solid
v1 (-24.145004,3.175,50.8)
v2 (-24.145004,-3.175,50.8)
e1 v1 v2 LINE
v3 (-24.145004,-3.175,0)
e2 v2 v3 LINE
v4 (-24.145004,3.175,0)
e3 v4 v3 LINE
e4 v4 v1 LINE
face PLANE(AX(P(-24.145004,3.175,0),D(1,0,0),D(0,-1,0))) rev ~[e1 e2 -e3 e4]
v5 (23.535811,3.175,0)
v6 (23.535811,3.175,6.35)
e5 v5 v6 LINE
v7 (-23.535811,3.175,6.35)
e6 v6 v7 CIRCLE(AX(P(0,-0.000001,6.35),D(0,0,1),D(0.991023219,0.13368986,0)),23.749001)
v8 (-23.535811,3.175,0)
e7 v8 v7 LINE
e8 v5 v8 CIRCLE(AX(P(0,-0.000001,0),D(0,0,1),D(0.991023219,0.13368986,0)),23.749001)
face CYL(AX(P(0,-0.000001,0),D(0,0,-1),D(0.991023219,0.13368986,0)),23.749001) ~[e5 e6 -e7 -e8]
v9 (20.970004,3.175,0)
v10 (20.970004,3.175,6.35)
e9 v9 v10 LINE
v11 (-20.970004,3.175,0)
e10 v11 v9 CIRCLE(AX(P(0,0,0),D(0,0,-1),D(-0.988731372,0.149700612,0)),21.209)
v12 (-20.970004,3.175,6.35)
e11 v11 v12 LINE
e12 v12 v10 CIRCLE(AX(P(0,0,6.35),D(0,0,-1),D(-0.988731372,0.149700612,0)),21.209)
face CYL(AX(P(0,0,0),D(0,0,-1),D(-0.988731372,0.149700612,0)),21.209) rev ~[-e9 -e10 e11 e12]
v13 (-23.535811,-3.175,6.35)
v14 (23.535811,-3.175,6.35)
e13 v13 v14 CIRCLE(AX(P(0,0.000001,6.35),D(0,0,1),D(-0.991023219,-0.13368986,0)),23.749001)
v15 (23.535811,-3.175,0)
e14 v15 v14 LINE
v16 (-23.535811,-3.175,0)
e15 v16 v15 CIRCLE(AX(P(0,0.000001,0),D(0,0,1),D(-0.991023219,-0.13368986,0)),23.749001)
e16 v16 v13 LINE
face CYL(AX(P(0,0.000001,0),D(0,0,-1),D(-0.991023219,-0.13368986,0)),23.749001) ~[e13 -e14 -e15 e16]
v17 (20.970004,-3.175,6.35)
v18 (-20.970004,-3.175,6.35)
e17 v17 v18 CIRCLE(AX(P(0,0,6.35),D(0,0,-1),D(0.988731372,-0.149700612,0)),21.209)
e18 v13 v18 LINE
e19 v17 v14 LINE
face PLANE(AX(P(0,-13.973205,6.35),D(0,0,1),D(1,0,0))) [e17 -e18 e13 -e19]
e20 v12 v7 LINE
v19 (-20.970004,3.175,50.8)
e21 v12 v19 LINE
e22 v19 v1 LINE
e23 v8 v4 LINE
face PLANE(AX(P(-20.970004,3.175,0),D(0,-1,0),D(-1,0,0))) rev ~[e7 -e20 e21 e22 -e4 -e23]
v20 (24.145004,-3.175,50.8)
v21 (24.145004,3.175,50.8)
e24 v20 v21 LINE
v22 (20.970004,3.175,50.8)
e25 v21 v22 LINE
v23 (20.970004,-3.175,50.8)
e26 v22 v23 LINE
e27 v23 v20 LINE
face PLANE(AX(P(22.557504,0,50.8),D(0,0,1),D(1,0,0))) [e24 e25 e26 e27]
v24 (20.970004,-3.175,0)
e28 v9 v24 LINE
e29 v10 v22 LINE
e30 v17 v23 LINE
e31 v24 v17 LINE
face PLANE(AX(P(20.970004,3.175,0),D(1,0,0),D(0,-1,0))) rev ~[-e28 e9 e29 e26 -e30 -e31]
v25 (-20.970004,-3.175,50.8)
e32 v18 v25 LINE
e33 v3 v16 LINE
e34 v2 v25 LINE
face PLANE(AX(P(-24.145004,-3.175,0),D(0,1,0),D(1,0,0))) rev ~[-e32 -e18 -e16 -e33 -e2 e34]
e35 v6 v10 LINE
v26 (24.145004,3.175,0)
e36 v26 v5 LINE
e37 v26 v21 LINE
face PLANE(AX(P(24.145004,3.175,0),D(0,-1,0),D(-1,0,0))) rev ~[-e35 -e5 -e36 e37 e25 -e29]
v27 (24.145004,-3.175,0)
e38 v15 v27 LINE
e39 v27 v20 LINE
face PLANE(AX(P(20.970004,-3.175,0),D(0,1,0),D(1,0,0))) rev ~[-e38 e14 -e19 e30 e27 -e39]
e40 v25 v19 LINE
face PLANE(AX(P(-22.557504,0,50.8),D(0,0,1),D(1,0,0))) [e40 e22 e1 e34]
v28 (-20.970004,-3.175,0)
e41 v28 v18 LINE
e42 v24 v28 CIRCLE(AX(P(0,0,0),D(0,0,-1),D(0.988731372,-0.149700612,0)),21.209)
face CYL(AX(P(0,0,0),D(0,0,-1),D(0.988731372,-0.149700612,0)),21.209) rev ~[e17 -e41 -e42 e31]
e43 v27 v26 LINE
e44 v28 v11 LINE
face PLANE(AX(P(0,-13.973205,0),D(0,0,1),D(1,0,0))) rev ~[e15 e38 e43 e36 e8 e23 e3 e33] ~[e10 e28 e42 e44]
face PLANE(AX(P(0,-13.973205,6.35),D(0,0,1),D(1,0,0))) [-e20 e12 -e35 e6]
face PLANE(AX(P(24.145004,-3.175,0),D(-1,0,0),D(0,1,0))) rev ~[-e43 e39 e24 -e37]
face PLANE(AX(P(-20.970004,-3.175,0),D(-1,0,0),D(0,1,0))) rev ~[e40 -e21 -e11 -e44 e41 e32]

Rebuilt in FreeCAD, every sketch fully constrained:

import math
import FreeCAD as App
import Part
import Sketcher
from FreeCAD import Vector
Q = App.Units.Quantity

doc = App.newDocument("Part")
body = doc.addObject("PartDesign::Body", "Body")
body.AllowCompound = True

sketch1 = doc.addObject("Sketcher::SketchObject", "Sketch")
body.addObject(sketch1)
sketch1.AttachmentSupport = (doc.XY_Plane, [""])
sketch1.MapMode = "FlatFace"
sketch1.addGeometry([
    Part.LineSegment(Vector(-21, -3.2, 0), Vector(-21, 3.2, 0)),
    Part.LineSegment(Vector(-21, 3.2, 0), Vector(-24.1, 3.2, 0)),
    Part.LineSegment(Vector(-24.1, 3.2, 0), Vector(-24.1, -3.2, 0)),
    Part.LineSegment(Vector(-24.1, -3.2, 0), Vector(-21, -3.2, 0)),
    Part.LineSegment(Vector(21, 3.2, 0), Vector(21, -3.2, 0)),
    Part.LineSegment(Vector(21, -3.2, 0), Vector(24.1, -3.2, 0)),
    Part.LineSegment(Vector(24.1, -3.2, 0), Vector(24.1, 3.2, 0)),
    Part.LineSegment(Vector(24.1, 3.2, 0), Vector(21, 3.2, 0)),
], False)
sketch1.addConstraint([
    Sketcher.Constraint("Coincident", 0, 2, 1, 1),
    Sketcher.Constraint("Coincident", 1, 2, 2, 1),
    Sketcher.Constraint("Coincident", 2, 2, 3, 1),
    Sketcher.Constraint("Coincident", 3, 2, 0, 1),
    Sketcher.Constraint("Coincident", 4, 2, 5, 1),
    Sketcher.Constraint("Coincident", 5, 2, 6, 1),
    Sketcher.Constraint("Coincident", 6, 2, 7, 1),
    Sketcher.Constraint("Coincident", 7, 2, 4, 1),
    Sketcher.Constraint("Vertical", 0),
    Sketcher.Constraint("Horizontal", 1),
    Sketcher.Constraint("Vertical", 2),
    Sketcher.Constraint("Horizontal", 3),
    Sketcher.Constraint("Vertical", 4),
    Sketcher.Constraint("Horizontal", 5),
    Sketcher.Constraint("Vertical", 6),
    Sketcher.Constraint("Horizontal", 7),
    Sketcher.Constraint("Symmetric", 0, 2, 4, 2, -1, 1),
    Sketcher.Constraint("Symmetric", 2, 2, 6, 2, -1, 1),
    Sketcher.Constraint("Horizontal", 3, 2, 4, 2),
    Sketcher.Constraint("DistanceY", 0, 1, 0, 2, Q("0.25 in")),
    Sketcher.Constraint("DistanceX", 1, 2, 1, 1, Q("0.125 in")),
    Sketcher.Constraint("DistanceX", 2, 2, 4, 2, Q("45.115008 mm")),
])
pad1 = doc.addObject("PartDesign::Pad", "Pad")
body.addObject(pad1)
pad1.Profile = sketch1
pad1.Length = Q("2 in")

sketch2 = doc.addObject("Sketcher::SketchObject", "Sketch001")
body.addObject(sketch2)
sketch2.AttachmentSupport = (doc.XY_Plane, [""])
sketch2.MapMode = "FlatFace"
sketch2.addGeometry([
    Part.LineSegment(Vector(-23.5, 3.2, 0), Vector(-24.1, 3.2, 0)),
    Part.LineSegment(Vector(-24.1, 3.2, 0), Vector(-24.1, -3.2, 0)),
    Part.LineSegment(Vector(-24.1, -3.2, 0), Vector(-23.5, -3.2, 0)),
    Part.ArcOfCircle(Part.Circle(Vector(0, 0, 0), Vector(0, 0, 1), 23.7), math.radians(-172), math.radians(-8)),
    Part.LineSegment(Vector(23.5, -3.2, 0), Vector(24.1, -3.2, 0)),
    Part.LineSegment(Vector(24.1, -3.2, 0), Vector(24.1, 3.2, 0)),
    Part.LineSegment(Vector(24.1, 3.2, 0), Vector(23.5, 3.2, 0)),
    Part.ArcOfCircle(Part.Circle(Vector(0, 0, 0), Vector(0, 0, 1), 23.7), math.radians(8), math.radians(172)),
    Part.ArcOfCircle(Part.Circle(Vector(0, 0, 0), Vector(0, 0, 1), 21.2), math.radians(-171), math.radians(-9)),
    Part.LineSegment(Vector(-21, -3.2, 0), Vector(-21, 3.2, 0)),
    Part.ArcOfCircle(Part.Circle(Vector(0, 0, 0), Vector(0, 0, 1), 21.2), math.radians(9), math.radians(171)),
    Part.LineSegment(Vector(21, 3.2, 0), Vector(21, -3.2, 0)),
], False)
sketch2.addConstraint([
    Sketcher.Constraint("Coincident", 0, 2, 1, 1),
    Sketcher.Constraint("Coincident", 1, 2, 2, 1),
    Sketcher.Constraint("Coincident", 2, 2, 3, 1),
    Sketcher.Constraint("Coincident", 3, 2, 4, 1),
    Sketcher.Constraint("Coincident", 4, 2, 5, 1),
    Sketcher.Constraint("Coincident", 5, 2, 6, 1),
    Sketcher.Constraint("Coincident", 6, 2, 7, 1),
    Sketcher.Constraint("Coincident", 7, 2, 0, 1),
    Sketcher.Constraint("Coincident", 8, 1, 9, 1),
    Sketcher.Constraint("Coincident", 9, 2, 10, 2),
    Sketcher.Constraint("Coincident", 10, 1, 11, 1),
    Sketcher.Constraint("Coincident", 11, 2, 8, 2),
    Sketcher.Constraint("Horizontal", 0),
    Sketcher.Constraint("Vertical", 1),
    Sketcher.Constraint("Horizontal", 2),
    Sketcher.Constraint("Horizontal", 4),
    Sketcher.Constraint("Vertical", 5),
    Sketcher.Constraint("Horizontal", 6),
    Sketcher.Constraint("Vertical", 9),
    Sketcher.Constraint("Vertical", 11),
    Sketcher.Constraint("Coincident", 3, 3, -1, 1),
    Sketcher.Constraint("Coincident", 7, 3, -1, 1),
    Sketcher.Constraint("Coincident", 8, 3, -1, 1),
    Sketcher.Constraint("Coincident", 10, 3, -1, 1),
    Sketcher.Constraint("Equal", 3, 7),
    Sketcher.Constraint("Equal", 8, 10),
    Sketcher.Constraint("Symmetric", 0, 2, 4, 2, -1, 1),
    Sketcher.Constraint("Horizontal", 2, 2, 3, 2),
    Sketcher.Constraint("Horizontal", 0, 2, 5, 2),
    Sketcher.Constraint("Horizontal", 4, 2, 8, 1),
    Sketcher.Constraint("Horizontal", 9, 2, 10, 1),
    Sketcher.Constraint("Radius", 3, Q("0.935 in")),
    Sketcher.Constraint("Radius", 8, Q("0.835 in")),
    Sketcher.Constraint("DistanceY", 1, 2, 1, 1, Q("0.25 in")),
    Sketcher.Constraint("DistanceX", 1, 2, 8, 1, Q("0.125 in")),
])
pad2 = doc.addObject("PartDesign::Pad", "Pad001")
body.addObject(pad2)
pad2.Profile = sketch2
pad2.Length = Q("0.25 in")

doc.recompute()
